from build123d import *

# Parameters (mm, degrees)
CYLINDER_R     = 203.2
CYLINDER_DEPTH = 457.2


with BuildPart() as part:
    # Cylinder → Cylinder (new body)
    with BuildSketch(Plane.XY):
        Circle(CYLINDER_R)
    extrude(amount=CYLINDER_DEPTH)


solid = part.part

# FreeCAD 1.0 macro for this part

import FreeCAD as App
import Part
import Sketcher
Q = App.Units.Quantity

doc = App.newDocument("Part")
body = doc.addObject("PartDesign::Body", "Body")

# Sketch on XY plane
sketch1 = doc.addObject("Sketcher::SketchObject", "Sketch")
body.addObject(sketch1)
sketch1.AttachmentSupport = (doc.XY_Plane, [""])
sketch1.MapMode = "FlatFace"
sketch1.addGeometry(Part.Circle(App.Vector(0, 0, 0), App.Vector(0, 0, 1), 203), False)
sketch1.addConstraint(Sketcher.Constraint("Coincident", 0, 3, -1, 1))
sketch1.addConstraint(Sketcher.Constraint("Diameter", 0, Q("16 in")))
pad1 = doc.addObject("PartDesign::Pad", "Pad")
body.addObject(pad1)
pad1.Profile = sketch1
pad1.Length = Q("18 in")

doc.recompute()
